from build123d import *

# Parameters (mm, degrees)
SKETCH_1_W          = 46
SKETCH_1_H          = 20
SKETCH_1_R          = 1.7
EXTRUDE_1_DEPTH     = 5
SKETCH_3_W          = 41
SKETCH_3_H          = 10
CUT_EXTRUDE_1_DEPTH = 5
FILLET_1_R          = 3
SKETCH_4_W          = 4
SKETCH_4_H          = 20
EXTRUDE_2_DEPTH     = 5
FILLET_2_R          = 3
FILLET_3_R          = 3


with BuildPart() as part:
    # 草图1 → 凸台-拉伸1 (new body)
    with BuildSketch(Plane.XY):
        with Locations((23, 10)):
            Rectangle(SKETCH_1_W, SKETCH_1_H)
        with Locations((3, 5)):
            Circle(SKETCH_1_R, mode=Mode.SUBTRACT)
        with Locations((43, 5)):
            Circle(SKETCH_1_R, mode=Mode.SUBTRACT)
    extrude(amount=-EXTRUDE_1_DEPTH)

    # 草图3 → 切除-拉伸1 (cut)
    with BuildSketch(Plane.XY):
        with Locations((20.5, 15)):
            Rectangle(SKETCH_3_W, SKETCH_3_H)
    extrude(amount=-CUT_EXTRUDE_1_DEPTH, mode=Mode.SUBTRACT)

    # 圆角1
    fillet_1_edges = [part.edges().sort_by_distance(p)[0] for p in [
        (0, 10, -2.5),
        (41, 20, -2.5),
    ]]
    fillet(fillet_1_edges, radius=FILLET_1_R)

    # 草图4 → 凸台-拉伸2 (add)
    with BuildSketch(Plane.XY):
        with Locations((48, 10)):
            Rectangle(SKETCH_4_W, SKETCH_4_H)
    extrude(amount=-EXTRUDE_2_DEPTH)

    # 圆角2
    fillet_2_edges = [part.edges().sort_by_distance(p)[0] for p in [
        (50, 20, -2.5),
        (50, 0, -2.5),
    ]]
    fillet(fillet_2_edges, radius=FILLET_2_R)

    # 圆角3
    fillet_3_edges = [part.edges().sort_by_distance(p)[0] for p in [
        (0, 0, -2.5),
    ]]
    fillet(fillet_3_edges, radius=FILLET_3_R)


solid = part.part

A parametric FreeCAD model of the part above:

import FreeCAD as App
import Part
import Sketcher


def edges_at(feature, points):
    """Names of the edges that pass closest to the given points."""
    edges = feature.Shape.Edges
    near = lambda p: min(range(len(edges)), key=lambda i: edges[i].distToShape(Part.Vertex(*p))[0])
    return sorted({f"Edge{near(p) + 1}" for p in points})

doc = App.newDocument("Part")
body = doc.addObject("PartDesign::Body", "Body")

# Sketch on XY plane
sketch1 = body.newObject("Sketcher::SketchObject", "Sketch")
sketch1.AttachmentSupport = (doc.getObject("XY_Plane"), [""])
sketch1.MapMode = "FlatFace"
sketch1.addGeometry(Part.LineSegment(App.Vector(0, 20, 0), App.Vector(0, 0, 0)), False)
sketch1.addGeometry(Part.LineSegment(App.Vector(0, 0, 0), App.Vector(46, 0, 0)), False)
sketch1.addGeometry(Part.LineSegment(App.Vector(46, 0, 0), App.Vector(46, 20, 0)), False)
sketch1.addGeometry(Part.LineSegment(App.Vector(46, 20, 0), App.Vector(0, 20, 0)), False)
sketch1.addGeometry(Part.Circle(App.Vector(3, 5, 0), App.Vector(0, 0, 1), 1.7), False)
sketch1.addGeometry(Part.Circle(App.Vector(43, 5, 0), App.Vector(0, 0, 1), 1.7), False)
sketch1.addConstraint(Sketcher.Constraint("Coincident", 0, 2, 1, 1))
sketch1.addConstraint(Sketcher.Constraint("Coincident", 1, 2, 2, 1))
sketch1.addConstraint(Sketcher.Constraint("Coincident", 2, 2, 3, 1))
sketch1.addConstraint(Sketcher.Constraint("Coincident", 3, 2, 0, 1))
sketch1.addConstraint(Sketcher.Constraint("Vertical", 0))
sketch1.addConstraint(Sketcher.Constraint("Horizontal", 1))
sketch1.addConstraint(Sketcher.Constraint("Vertical", 2))
sketch1.addConstraint(Sketcher.Constraint("Horizontal", 3))
sketch1.addConstraint(Sketcher.Constraint("Coincident", 0, 2, -1, 1))
sketch1.addConstraint(Sketcher.Constraint("Equal", 4, 5))
sketch1.addConstraint(Sketcher.Constraint("Horizontal", 4, 3, 5, 3))
sketch1.addConstraint(Sketcher.Constraint("Diameter", 4, 3.4))
sketch1.addConstraint(Sketcher.Constraint("DistanceX", 1, 1, 1, 2, 46.0))
sketch1.addConstraint(Sketcher.Constraint("DistanceY", 0, 2, 0, 1, 20.0))
sketch1.addConstraint(Sketcher.Constraint("DistanceX", -1, 1, 4, 3, 3.0))
sketch1.addConstraint(Sketcher.Constraint("DistanceY", -1, 1, 4, 3, 5.0))
sketch1.addConstraint(Sketcher.Constraint("DistanceX", -1, 1, 5, 3, 43.0))
pad1 = body.newObject("PartDesign::Pad", "Pad")
pad1.Profile = sketch1
pad1.Length = 5
pad1.Reversed = True

# Sketch on XY plane
sketch2 = body.newObject("Sketcher::SketchObject", "Sketch001")
sketch2.AttachmentSupport = (doc.getObject("XY_Plane"), [""])
sketch2.MapMode = "FlatFace"
sketch2.addGeometry(Part.LineSegment(App.Vector(0, 20, 0), App.Vector(0, 10, 0)), False)
sketch2.addGeometry(Part.LineSegment(App.Vector(0, 10, 0), App.Vector(41, 10, 0)), False)
sketch2.addGeometry(Part.LineSegment(App.Vector(41, 10, 0), App.Vector(41, 20, 0)), False)
sketch2.addGeometry(Part.LineSegment(App.Vector(41, 20, 0), App.Vector(0, 20, 0)), False)
sketch2.addConstraint(Sketcher.Constraint("Coincident", 0, 2, 1, 1))
sketch2.addConstraint(Sketcher.Constraint("Coincident", 1, 2, 2, 1))
sketch2.addConstraint(Sketcher.Constraint("Coincident", 2, 2, 3, 1))
sketch2.addConstraint(Sketcher.Constraint("Coincident", 3, 2, 0, 1))
sketch2.addConstraint(Sketcher.Constraint("Vertical", 0))
sketch2.addConstraint(Sketcher.Constraint("Horizontal", 1))
sketch2.addConstraint(Sketcher.Constraint("Vertical", 2))
sketch2.addConstraint(Sketcher.Constraint("Horizontal", 3))
sketch2.addConstraint(Sketcher.Constraint("PointOnObject", 0, 2, -2))
sketch2.addConstraint(Sketcher.Constraint("DistanceX", 1, 1, 1, 2, 41.0))
sketch2.addConstraint(Sketcher.Constraint("DistanceY", 0, 2, 0, 1, 10.0))
sketch2.addConstraint(Sketcher.Constraint("DistanceY", -1, 1, 0, 2, 10.0))
pocket1 = body.newObject("PartDesign::Pocket", "Pocket")
pocket1.Profile = sketch2
pocket1.Length = 5
doc.recompute()

fillet = body.newObject("PartDesign::Fillet", "Fillet")
fillet.Base = (pocket1, edges_at(pocket1, [(0, 10, -2.5), (41, 20, -2.5)]))
fillet.Radius = 3

# Sketch on XY plane
sketch3 = body.newObject("Sketcher::SketchObject", "Sketch002")
sketch3.AttachmentSupport = (doc.getObject("XY_Plane"), [""])
sketch3.MapMode = "FlatFace"
sketch3.addGeometry(Part.LineSegment(App.Vector(46, 20, 0), App.Vector(46, 0, 0)), False)
sketch3.addGeometry(Part.LineSegment(App.Vector(46, 0, 0), App.Vector(50, 0, 0)), False)
sketch3.addGeometry(Part.LineSegment(App.Vector(50, 0, 0), App.Vector(50, 20, 0)), False)
sketch3.addGeometry(Part.LineSegment(App.Vector(50, 20, 0), App.Vector(46, 20, 0)), False)
sketch3.addConstraint(Sketcher.Constraint("Coincident", 0, 2, 1, 1))
sketch3.addConstraint(Sketcher.Constraint("Coincident", 1, 2, 2, 1))
sketch3.addConstraint(Sketcher.Constraint("Coincident", 2, 2, 3, 1))
sketch3.addConstraint(Sketcher.Constraint("Coincident", 3, 2, 0, 1))
sketch3.addConstraint(Sketcher.Constraint("Vertical", 0))
sketch3.addConstraint(Sketcher.Constraint("Horizontal", 1))
sketch3.addConstraint(Sketcher.Constraint("Vertical", 2))
sketch3.addConstraint(Sketcher.Constraint("Horizontal", 3))
sketch3.addConstraint(Sketcher.Constraint("PointOnObject", 0, 2, -1))
sketch3.addConstraint(Sketcher.Constraint("DistanceX", 1, 1, 1, 2, 4.0))
sketch3.addConstraint(Sketcher.Constraint("DistanceY", 0, 2, 0, 1, 20.0))
sketch3.addConstraint(Sketcher.Constraint("DistanceX", -1, 1, 0, 2, 46.0))
pad2 = body.newObject("PartDesign::Pad", "Pad001")
pad2.Profile = sketch3
pad2.Length = 5
pad2.Reversed = True
doc.recompute()

fillet2 = body.newObject("PartDesign::Fillet", "Fillet001")
fillet2.Base = (pad2, edges_at(pad2, [(50, 20, -2.5), (50, 0, -2.5)]))
fillet2.Radius = 3
doc.recompute()

fillet3 = body.newObject("PartDesign::Fillet", "Fillet002")
fillet3.Base = (fillet2, edges_at(fillet2, [(0, 0, -2.5)]))
fillet3.Radius = 3

doc.recompute()
